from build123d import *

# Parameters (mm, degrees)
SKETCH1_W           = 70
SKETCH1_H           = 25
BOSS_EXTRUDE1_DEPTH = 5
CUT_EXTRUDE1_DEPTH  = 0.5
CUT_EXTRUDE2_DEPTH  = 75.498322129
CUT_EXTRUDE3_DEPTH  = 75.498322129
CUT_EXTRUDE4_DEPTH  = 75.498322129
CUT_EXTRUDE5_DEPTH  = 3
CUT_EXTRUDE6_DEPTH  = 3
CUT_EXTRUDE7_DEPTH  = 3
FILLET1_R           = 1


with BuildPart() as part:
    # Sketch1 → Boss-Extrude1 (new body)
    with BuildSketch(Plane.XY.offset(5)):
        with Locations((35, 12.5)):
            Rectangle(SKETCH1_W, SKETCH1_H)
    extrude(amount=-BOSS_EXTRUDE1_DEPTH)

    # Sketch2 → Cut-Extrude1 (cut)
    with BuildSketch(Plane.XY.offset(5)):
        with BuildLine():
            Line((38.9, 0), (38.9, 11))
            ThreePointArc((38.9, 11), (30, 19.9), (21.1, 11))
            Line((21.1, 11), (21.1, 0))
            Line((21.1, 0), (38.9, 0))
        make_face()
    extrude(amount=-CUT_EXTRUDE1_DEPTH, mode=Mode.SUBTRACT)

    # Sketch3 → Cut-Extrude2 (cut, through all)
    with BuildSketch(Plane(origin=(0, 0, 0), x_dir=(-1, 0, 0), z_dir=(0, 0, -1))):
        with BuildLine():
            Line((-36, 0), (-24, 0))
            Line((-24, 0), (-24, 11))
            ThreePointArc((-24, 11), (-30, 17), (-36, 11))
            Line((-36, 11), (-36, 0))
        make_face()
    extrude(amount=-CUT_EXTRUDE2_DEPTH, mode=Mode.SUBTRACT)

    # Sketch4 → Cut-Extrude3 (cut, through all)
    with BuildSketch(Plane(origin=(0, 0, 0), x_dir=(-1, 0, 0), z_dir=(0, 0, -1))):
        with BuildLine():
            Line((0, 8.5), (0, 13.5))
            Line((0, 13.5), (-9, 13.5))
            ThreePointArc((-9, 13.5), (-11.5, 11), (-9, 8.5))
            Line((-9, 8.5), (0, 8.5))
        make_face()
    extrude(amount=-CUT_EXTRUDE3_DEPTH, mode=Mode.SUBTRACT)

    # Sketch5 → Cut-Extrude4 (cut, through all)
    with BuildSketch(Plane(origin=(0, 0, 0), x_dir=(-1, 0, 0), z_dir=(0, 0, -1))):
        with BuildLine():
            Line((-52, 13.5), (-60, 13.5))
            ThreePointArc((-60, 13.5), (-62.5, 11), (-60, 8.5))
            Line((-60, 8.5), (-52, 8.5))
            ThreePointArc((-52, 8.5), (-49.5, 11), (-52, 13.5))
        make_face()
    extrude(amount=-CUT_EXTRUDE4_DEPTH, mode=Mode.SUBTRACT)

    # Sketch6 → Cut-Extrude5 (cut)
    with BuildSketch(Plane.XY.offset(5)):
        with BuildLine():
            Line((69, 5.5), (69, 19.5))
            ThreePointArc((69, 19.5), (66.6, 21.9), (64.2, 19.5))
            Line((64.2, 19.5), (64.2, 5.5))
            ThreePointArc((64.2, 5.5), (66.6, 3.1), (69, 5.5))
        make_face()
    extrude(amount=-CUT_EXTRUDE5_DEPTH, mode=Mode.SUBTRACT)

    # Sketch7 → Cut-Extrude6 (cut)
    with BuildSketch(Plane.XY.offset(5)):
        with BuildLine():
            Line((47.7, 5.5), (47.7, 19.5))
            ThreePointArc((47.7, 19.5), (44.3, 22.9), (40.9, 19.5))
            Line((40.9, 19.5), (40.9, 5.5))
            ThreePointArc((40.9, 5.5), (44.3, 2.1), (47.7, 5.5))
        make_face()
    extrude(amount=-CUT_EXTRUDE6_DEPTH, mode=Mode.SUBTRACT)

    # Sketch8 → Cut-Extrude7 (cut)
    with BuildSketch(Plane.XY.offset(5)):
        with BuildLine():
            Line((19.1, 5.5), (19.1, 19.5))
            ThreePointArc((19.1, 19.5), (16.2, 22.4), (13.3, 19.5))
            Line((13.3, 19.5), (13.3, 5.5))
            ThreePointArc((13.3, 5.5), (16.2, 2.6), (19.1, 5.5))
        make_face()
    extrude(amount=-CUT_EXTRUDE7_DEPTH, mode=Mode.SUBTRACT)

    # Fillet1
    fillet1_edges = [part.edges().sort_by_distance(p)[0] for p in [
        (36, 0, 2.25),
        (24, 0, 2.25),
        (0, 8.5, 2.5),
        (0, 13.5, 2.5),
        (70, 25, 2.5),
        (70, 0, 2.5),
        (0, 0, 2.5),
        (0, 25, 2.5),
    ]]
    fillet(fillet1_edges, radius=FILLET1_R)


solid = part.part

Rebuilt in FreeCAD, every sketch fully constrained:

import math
import FreeCAD as App
import Part
import Sketcher


def edges_at(feature, points):
    """Names of the edges that pass closest to the given points."""
    edges = feature.Shape.Edges
    near = lambda p: min(range(len(edges)), key=lambda i: edges[i].distToShape(Part.Vertex(*p))[0])
    return sorted({f"Edge{near(p) + 1}" for p in points})

doc = App.newDocument("Part")
body = doc.addObject("PartDesign::Body", "Body")

sketch1 = doc.addObject("Sketcher::SketchObject", "Sketch")
body.addObject(sketch1)
sketch1.AttachmentSupport = (doc.XY_Plane, [""])
sketch1.MapMode = "FlatFace"
sketch1.AttachmentOffset = App.Placement(App.Vector(0, 0, 5), App.Rotation())
sketch1.addGeometry([
    Part.LineSegment(App.Vector(0, 25, 0), App.Vector(0, 0, 0)),
    Part.LineSegment(App.Vector(0, 0, 0), App.Vector(70, 0, 0)),
    Part.LineSegment(App.Vector(70, 0, 0), App.Vector(70, 25, 0)),
    Part.LineSegment(App.Vector(70, 25, 0), App.Vector(0, 25, 0)),
], False)
sketch1.addConstraint([
    Sketcher.Constraint("Coincident", 0, 2, 1, 1),
    Sketcher.Constraint("Coincident", 1, 2, 2, 1),
    Sketcher.Constraint("Coincident", 2, 2, 3, 1),
    Sketcher.Constraint("Coincident", 3, 2, 0, 1),
    Sketcher.Constraint("Vertical", 0),
    Sketcher.Constraint("Horizontal", 1),
    Sketcher.Constraint("Vertical", 2),
    Sketcher.Constraint("Horizontal", 3),
    Sketcher.Constraint("Coincident", 0, 2, -1, 1),
    Sketcher.Constraint("DistanceX", 1, 1, 1, 2, 70.0),
    Sketcher.Constraint("DistanceY", 0, 2, 0, 1, 25.0),
])
pad1 = doc.addObject("PartDesign::Pad", "Pad")
body.addObject(pad1)
pad1.Profile = sketch1
pad1.Length = 5
pad1.Reversed = True

sketch2 = doc.addObject("Sketcher::SketchObject", "Sketch001")
body.addObject(sketch2)
sketch2.AttachmentSupport = (doc.XY_Plane, [""])
sketch2.MapMode = "FlatFace"
sketch2.AttachmentOffset = App.Placement(App.Vector(0, 0, 5), App.Rotation())
sketch2.addGeometry([
    Part.LineSegment(App.Vector(38.9, 0, 0), App.Vector(38.9, 11, 0)),
    Part.ArcOfCircle(Part.Circle(App.Vector(30, 11, 0), App.Vector(0, 0, 1), 8.9), math.radians(0), math.radians(180)),
    Part.LineSegment(App.Vector(21.1, 11, 0), App.Vector(21.1, 0, 0)),
    Part.LineSegment(App.Vector(21.1, 0, 0), App.Vector(38.9, 0, 0)),
], False)
sketch2.addConstraint([
    Sketcher.Constraint("Tangent", 0, 2, 1, 1),
    Sketcher.Constraint("Tangent", 1, 2, 2, 1),
    Sketcher.Constraint("Coincident", 2, 2, 3, 1),
    Sketcher.Constraint("Coincident", 3, 2, 0, 1),
    Sketcher.Constraint("Vertical", 0),
    Sketcher.Constraint("Vertical", 2),
    Sketcher.Constraint("Horizontal", 3),
    Sketcher.Constraint("PointOnObject", 2, 2, -1),
    Sketcher.Constraint("Radius", 1, 8.9),
    Sketcher.Constraint("DistanceY", 0, 1, 0, 2, 11.0),
    Sketcher.Constraint("DistanceX", -1, 1, 1, 3, 30.0),
])
pocket1 = doc.addObject("PartDesign::Pocket", "Pocket")
body.addObject(pocket1)
pocket1.Profile = sketch2
pocket1.Length = 0.5

sketch3 = doc.addObject("Sketcher::SketchObject", "Sketch002")
body.addObject(sketch3)
sketch3.AttachmentSupport = (doc.XY_Plane, [""])
sketch3.MapMode = "FlatFace"
sketch3.addGeometry([
    Part.LineSegment(App.Vector(36, 0, 0), App.Vector(24, 0, 0)),
    Part.LineSegment(App.Vector(24, 0, 0), App.Vector(24, 11, 0)),
    Part.ArcOfCircle(Part.Circle(App.Vector(30, 11, 0), App.Vector(0, 0, 1), 6), math.radians(0), math.radians(180)),
    Part.LineSegment(App.Vector(36, 11, 0), App.Vector(36, 0, 0)),
], False)
sketch3.addConstraint([
    Sketcher.Constraint("Coincident", 0, 2, 1, 1),
    Sketcher.Constraint("Tangent", 1, 2, 2, 2),
    Sketcher.Constraint("Tangent", 2, 1, 3, 1),
    Sketcher.Constraint("Coincident", 3, 2, 0, 1),
    Sketcher.Constraint("Horizontal", 0),
    Sketcher.Constraint("Vertical", 1),
    Sketcher.Constraint("Vertical", 3),
    Sketcher.Constraint("PointOnObject", 0, 2, -1),
    Sketcher.Constraint("Radius", 2, 6.0),
    Sketcher.Constraint("DistanceY", 1, 1, 1, 2, 11.0),
    Sketcher.Constraint("DistanceX", -1, 1, 2, 3, 30.0),
])
pocket2 = doc.addObject("PartDesign::Pocket", "Pocket001")
body.addObject(pocket2)
pocket2.Profile = sketch3
pocket2.Type = "ThroughAll"
pocket2.Reversed = True

sketch4 = doc.addObject("Sketcher::SketchObject", "Sketch003")
body.addObject(sketch4)
sketch4.AttachmentSupport = (doc.XY_Plane, [""])
sketch4.MapMode = "FlatFace"
sketch4.addGeometry([
    Part.LineSegment(App.Vector(0, 8.5, 0), App.Vector(0, 13.5, 0)),
    Part.LineSegment(App.Vector(0, 13.5, 0), App.Vector(9, 13.5, 0)),
    Part.ArcOfCircle(Part.Circle(App.Vector(9, 11, 0), App.Vector(0, 0, 1), 2.5), math.radians(-90), math.radians(90)),
    Part.LineSegment(App.Vector(9, 8.5, 0), App.Vector(0, 8.5, 0)),
], False)
sketch4.addConstraint([
    Sketcher.Constraint("Coincident", 0, 2, 1, 1),
    Sketcher.Constraint("Tangent", 1, 2, 2, 2),
    Sketcher.Constraint("Tangent", 2, 1, 3, 1),
    Sketcher.Constraint("Coincident", 3, 2, 0, 1),
    Sketcher.Constraint("Vertical", 0),
    Sketcher.Constraint("Horizontal", 1),
    Sketcher.Constraint("Horizontal", 3),
    Sketcher.Constraint("PointOnObject", 0, 2, -2),
    Sketcher.Constraint("Radius", 2, 2.5),
    Sketcher.Constraint("DistanceX", 1, 1, 1, 2, 9.0),
    Sketcher.Constraint("DistanceY", -1, 1, 2, 3, 11.0),
])
pocket3 = doc.addObject("PartDesign::Pocket", "Pocket002")
body.addObject(pocket3)
pocket3.Profile = sketch4
pocket3.Type = "ThroughAll"
pocket3.Reversed = True

sketch5 = doc.addObject("Sketcher::SketchObject", "Sketch004")
body.addObject(sketch5)
sketch5.AttachmentSupport = (doc.XY_Plane, [""])
sketch5.MapMode = "FlatFace"
sketch5.addGeometry([
    Part.LineSegment(App.Vector(52, 13.5, 0), App.Vector(60, 13.5, 0)),
    Part.ArcOfCircle(Part.Circle(App.Vector(60, 11, 0), App.Vector(0, 0, 1), 2.5), math.radians(-90), math.radians(90)),
    Part.LineSegment(App.Vector(60, 8.5, 0), App.Vector(52, 8.5, 0)),
    Part.ArcOfCircle(Part.Circle(App.Vector(52, 11, 0), App.Vector(0, 0, 1), 2.5), math.radians(90), math.radians(270)),
], False)
sketch5.addConstraint([
    Sketcher.Constraint("Tangent", 0, 2, 1, 2),
    Sketcher.Constraint("Tangent", 1, 1, 2, 1),
    Sketcher.Constraint("Tangent", 2, 2, 3, 2),
    Sketcher.Constraint("Tangent", 3, 1, 0, 1),
    Sketcher.Constraint("Horizontal", 0),
    Sketcher.Constraint("Horizontal", 2),
    Sketcher.Constraint("Radius", 1, 2.5),
    Sketcher.Constraint("DistanceX", 0, 1, 0, 2, 8.0),
    Sketcher.Constraint("DistanceX", -1, 1, 1, 3, 60.0),
    Sketcher.Constraint("DistanceY", -1, 1, 1, 3, 11.0),
])
pocket4 = doc.addObject("PartDesign::Pocket", "Pocket003")
body.addObject(pocket4)
pocket4.Profile = sketch5
pocket4.Type = "ThroughAll"
pocket4.Reversed = True

sketch6 = doc.addObject("Sketcher::SketchObject", "Sketch005")
body.addObject(sketch6)
sketch6.AttachmentSupport = (doc.XY_Plane, [""])
sketch6.MapMode = "FlatFace"
sketch6.AttachmentOffset = App.Placement(App.Vector(0, 0, 5), App.Rotation())
sketch6.addGeometry([
    Part.LineSegment(App.Vector(69, 5.5, 0), App.Vector(69, 19.5, 0)),
    Part.ArcOfCircle(Part.Circle(App.Vector(66.6, 19.5, 0), App.Vector(0, 0, 1), 2.4), math.radians(0), math.radians(180)),
    Part.LineSegment(App.Vector(64.2, 19.5, 0), App.Vector(64.2, 5.5, 0)),
    Part.ArcOfCircle(Part.Circle(App.Vector(66.6, 5.5, 0), App.Vector(0, 0, 1), 2.4), math.radians(180), math.radians(360)),
], False)
sketch6.addConstraint([
    Sketcher.Constraint("Tangent", 0, 2, 1, 1),
    Sketcher.Constraint("Tangent", 1, 2, 2, 1),
    Sketcher.Constraint("Tangent", 2, 2, 3, 1),
    Sketcher.Constraint("Tangent", 3, 2, 0, 1),
    Sketcher.Constraint("Vertical", 0),
    Sketcher.Constraint("Vertical", 2),
    Sketcher.Constraint("Radius", 1, 2.4),
    Sketcher.Constraint("DistanceY", 0, 1, 0, 2, 14.0),
    Sketcher.Constraint("DistanceX", -1, 1, 0, 2, 69.0),
    Sketcher.Constraint("DistanceY", -1, 1, 1, 3, 19.5),
])
pocket5 = doc.addObject("PartDesign::Pocket", "Pocket004")
body.addObject(pocket5)
pocket5.Profile = sketch6
pocket5.Length = 3

sketch7 = doc.addObject("Sketcher::SketchObject", "Sketch006")
body.addObject(sketch7)
sketch7.AttachmentSupport = (doc.XY_Plane, [""])
sketch7.MapMode = "FlatFace"
sketch7.AttachmentOffset = App.Placement(App.Vector(0, 0, 5), App.Rotation())
sketch7.addGeometry([
    Part.LineSegment(App.Vector(47.7, 5.5, 0), App.Vector(47.7, 19.5, 0)),
    Part.ArcOfCircle(Part.Circle(App.Vector(44.3, 19.5, 0), App.Vector(0, 0, 1), 3.4), math.radians(0), math.radians(180)),
    Part.LineSegment(App.Vector(40.9, 19.5, 0), App.Vector(40.9, 5.5, 0)),
    Part.ArcOfCircle(Part.Circle(App.Vector(44.3, 5.5, 0), App.Vector(0, 0, 1), 3.4), math.radians(180), math.radians(360)),
], False)
sketch7.addConstraint([
    Sketcher.Constraint("Tangent", 0, 2, 1, 1),
    Sketcher.Constraint("Tangent", 1, 2, 2, 1),
    Sketcher.Constraint("Tangent", 2, 2, 3, 1),
    Sketcher.Constraint("Tangent", 3, 2, 0, 1),
    Sketcher.Constraint("Vertical", 0),
    Sketcher.Constraint("Vertical", 2),
    Sketcher.Constraint("Radius", 1, 3.4),
    Sketcher.Constraint("DistanceY", 0, 1, 0, 2, 14.0),
    Sketcher.Constraint("DistanceX", -1, 1, 1, 3, 44.3),
    Sketcher.Constraint("DistanceY", -1, 1, 1, 3, 19.5),
])
pocket6 = doc.addObject("PartDesign::Pocket", "Pocket005")
body.addObject(pocket6)
pocket6.Profile = sketch7
pocket6.Length = 3

sketch8 = doc.addObject("Sketcher::SketchObject", "Sketch007")
body.addObject(sketch8)
sketch8.AttachmentSupport = (doc.XY_Plane, [""])
sketch8.MapMode = "FlatFace"
sketch8.AttachmentOffset = App.Placement(App.Vector(0, 0, 5), App.Rotation())
sketch8.addGeometry([
    Part.LineSegment(App.Vector(19.1, 5.5, 0), App.Vector(19.1, 19.5, 0)),
    Part.ArcOfCircle(Part.Circle(App.Vector(16.2, 19.5, 0), App.Vector(0, 0, 1), 2.9), math.radians(0), math.radians(180)),
    Part.LineSegment(App.Vector(13.3, 19.5, 0), App.Vector(13.3, 5.5, 0)),
    Part.ArcOfCircle(Part.Circle(App.Vector(16.2, 5.5, 0), App.Vector(0, 0, 1), 2.9), math.radians(180), math.radians(360)),
], False)
sketch8.addConstraint([
    Sketcher.Constraint("Tangent", 0, 2, 1, 1),
    Sketcher.Constraint("Tangent", 1, 2, 2, 1),
    Sketcher.Constraint("Tangent", 2, 2, 3, 1),
    Sketcher.Constraint("Tangent", 3, 2, 0, 1),
    Sketcher.Constraint("Vertical", 0),
    Sketcher.Constraint("Vertical", 2),
    Sketcher.Constraint("Radius", 1, 2.9),
    Sketcher.Constraint("DistanceY", 0, 1, 0, 2, 14.0),
    Sketcher.Constraint("DistanceX", -1, 1, 1, 3, 16.2),
    Sketcher.Constraint("DistanceY", -1, 1, 1, 3, 19.5),
])
pocket7 = doc.addObject("PartDesign::Pocket", "Pocket006")
body.addObject(pocket7)
pocket7.Profile = sketch8
pocket7.Length = 3
doc.recompute()

fillet = doc.addObject("PartDesign::Fillet", "Fillet")
body.addObject(fillet)
fillet.Base = (pocket7, edges_at(pocket7, [
    (36, 0, 2.25),
    (24, 0, 2.25),
    (0, 8.5, 2.5),
    (0, 13.5, 2.5),
    (70, 25, 2.5),
    (70, 0, 2.5),
    (0, 0, 2.5),
    (0, 25, 2.5),
]))
fillet.Radius = 1

doc.recompute()
